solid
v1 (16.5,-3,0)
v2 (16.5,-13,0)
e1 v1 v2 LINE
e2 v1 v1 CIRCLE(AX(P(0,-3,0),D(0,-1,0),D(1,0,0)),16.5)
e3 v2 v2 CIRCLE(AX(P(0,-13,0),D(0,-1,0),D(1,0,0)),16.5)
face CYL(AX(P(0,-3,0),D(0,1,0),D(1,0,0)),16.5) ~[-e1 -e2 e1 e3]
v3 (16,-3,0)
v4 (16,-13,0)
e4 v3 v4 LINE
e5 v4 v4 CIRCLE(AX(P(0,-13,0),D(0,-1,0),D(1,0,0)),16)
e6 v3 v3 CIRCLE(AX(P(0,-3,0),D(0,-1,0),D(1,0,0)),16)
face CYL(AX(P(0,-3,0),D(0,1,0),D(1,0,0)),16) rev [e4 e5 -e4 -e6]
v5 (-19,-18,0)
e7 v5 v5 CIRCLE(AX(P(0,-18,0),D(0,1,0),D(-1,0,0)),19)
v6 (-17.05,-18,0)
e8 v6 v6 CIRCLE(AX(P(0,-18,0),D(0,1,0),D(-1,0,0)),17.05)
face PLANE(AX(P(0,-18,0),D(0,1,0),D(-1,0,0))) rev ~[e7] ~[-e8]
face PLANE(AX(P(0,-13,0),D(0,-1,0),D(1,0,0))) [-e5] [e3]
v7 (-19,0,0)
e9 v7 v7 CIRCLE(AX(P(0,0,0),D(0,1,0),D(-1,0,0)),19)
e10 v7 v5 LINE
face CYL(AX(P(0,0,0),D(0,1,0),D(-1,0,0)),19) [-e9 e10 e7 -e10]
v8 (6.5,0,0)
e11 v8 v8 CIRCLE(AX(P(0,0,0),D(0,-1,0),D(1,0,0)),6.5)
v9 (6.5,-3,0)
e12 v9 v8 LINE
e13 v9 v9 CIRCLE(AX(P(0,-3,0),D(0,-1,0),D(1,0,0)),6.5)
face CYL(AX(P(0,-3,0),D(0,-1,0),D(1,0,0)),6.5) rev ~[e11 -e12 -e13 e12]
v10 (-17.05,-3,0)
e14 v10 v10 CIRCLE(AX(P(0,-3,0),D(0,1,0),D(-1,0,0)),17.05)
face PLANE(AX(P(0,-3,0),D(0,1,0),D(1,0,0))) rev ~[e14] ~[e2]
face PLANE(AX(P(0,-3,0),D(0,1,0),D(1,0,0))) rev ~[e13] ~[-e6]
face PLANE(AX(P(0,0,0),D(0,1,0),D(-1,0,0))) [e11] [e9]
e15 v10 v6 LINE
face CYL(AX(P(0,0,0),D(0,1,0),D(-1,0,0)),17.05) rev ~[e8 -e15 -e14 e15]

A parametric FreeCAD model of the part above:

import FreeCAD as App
import Part
import Sketcher

V = App.Vector

doc = App.newDocument("Part")
params = doc.addObject("Spreadsheet::Sheet", "Params")
for row, (alias, value) in enumerate([
    ("sketch1_diameter", "38 mm"),
    ("sketch1_diameter2", "34.1 mm"),
    ("pad1_length", "18 mm"),
    ("sketch2_diameter", "34.1 mm"),
    ("pad2_length", "3 mm"),
    ("sketch3_diameter", "13 mm"),
    ("pocket1_length", "3 mm"),
    ("sketch4_diameter", "33 mm"),
    ("sketch4_diameter2", "32 mm"),
    ("pad3_length", "10 mm"),
], start=1):
    params.set(f"A{row}", alias)
    params.set(f"B{row}", "=" + value)
    params.setAlias(f"B{row}", alias)

body = doc.addObject("PartDesign::Body", "Body")

sketch1 = body.newObject("Sketcher::SketchObject", "Sketch")
sketch1.AttachmentSupport = (doc.getObject("XZ_Plane"), [""])
sketch1.MapMode = "FlatFace"
sketch1.addGeometry([
    Part.Circle(V(0, 0, 0), V(0, 0, 1), 19),
    Part.Circle(V(0, 0, 0), V(0, 0, 1), 17.05),
], False)
sketch1.addConstraint([
    Sketcher.Constraint("Coincident", 0, 3, -1, 1),
    Sketcher.Constraint("Coincident", 1, 3, -1, 1),
    Sketcher.Constraint("Diameter", 0, 38.0),
    Sketcher.Constraint("Diameter", 1, 34.1),
])
sketch1.setExpression("Constraints[2]", "Params.sketch1_diameter")
sketch1.setExpression("Constraints[3]", "Params.sketch1_diameter2")
pad1 = body.newObject("PartDesign::Pad", "Pad")
pad1.Profile = sketch1
pad1.setExpression("Length", "Params.pad1_length")

sketch2 = body.newObject("Sketcher::SketchObject", "Sketch001")
sketch2.AttachmentSupport = (doc.getObject("XZ_Plane"), [""])
sketch2.MapMode = "FlatFace"
sketch2.addGeometry(Part.Circle(V(0, 0, 0), V(0, 0, 1), 17.05), False)
sketch2.addConstraint([
    Sketcher.Constraint("Coincident", 0, 3, -1, 1),
    Sketcher.Constraint("Diameter", 0, 34.1),
])
sketch2.setExpression("Constraints[1]", "Params.sketch2_diameter")
pad2 = body.newObject("PartDesign::Pad", "Pad001")
pad2.Profile = sketch2
pad2.setExpression("Length", "Params.pad2_length")

sketch3 = body.newObject("Sketcher::SketchObject", "Sketch002")
sketch3.AttachmentSupport = (doc.getObject("XZ_Plane"), [""])
sketch3.MapMode = "FlatFace"
sketch3.AttachmentOffset = App.Placement(V(0, 0, 3), App.Rotation())
sketch3.addGeometry(Part.Circle(V(0, 0, 0), V(0, 0, 1), 6.5), False)
sketch3.addConstraint([
    Sketcher.Constraint("Coincident", 0, 3, -1, 1),
    Sketcher.Constraint("Diameter", 0, 13.0),
])
sketch3.setExpression("Constraints[1]", "Params.sketch3_diameter")
pocket1 = body.newObject("PartDesign::Pocket", "Pocket")
pocket1.Profile = sketch3
pocket1.setExpression("Length", "Params.pocket1_length")

sketch4 = body.newObject("Sketcher::SketchObject", "Sketch003")
sketch4.AttachmentSupport = (doc.getObject("XZ_Plane"), [""])
sketch4.MapMode = "FlatFace"
sketch4.AttachmentOffset = App.Placement(V(0, 0, 3), App.Rotation())
sketch4.addGeometry([
    Part.Circle(V(0, 0, 0), V(0, 0, 1), 16.5),
    Part.Circle(V(0, 0, 0), V(0, 0, 1), 16),
], False)
sketch4.addConstraint([
    Sketcher.Constraint("Coincident", 0, 3, -1, 1),
    Sketcher.Constraint("Coincident", 1, 3, -1, 1),
    Sketcher.Constraint("Diameter", 0, 33.0),
    Sketcher.Constraint("Diameter", 1, 32.0),
])
sketch4.setExpression("Constraints[2]", "Params.sketch4_diameter")
sketch4.setExpression("Constraints[3]", "Params.sketch4_diameter2")
pad3 = body.newObject("PartDesign::Pad", "Pad002")
pad3.Profile = sketch4
pad3.setExpression("Length", "Params.pad3_length")

doc.recompute()
